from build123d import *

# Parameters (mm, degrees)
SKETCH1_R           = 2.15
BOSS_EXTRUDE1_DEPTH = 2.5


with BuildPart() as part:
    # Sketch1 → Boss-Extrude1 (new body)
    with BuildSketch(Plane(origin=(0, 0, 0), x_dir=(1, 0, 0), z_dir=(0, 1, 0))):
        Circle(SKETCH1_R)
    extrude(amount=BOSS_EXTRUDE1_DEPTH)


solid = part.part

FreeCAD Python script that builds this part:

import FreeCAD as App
import Part
import Sketcher
Q = App.Units.Quantity

doc = App.newDocument("Part")
body = doc.addObject("PartDesign::Body", "Body")

# Sketch on XZ plane
sketch1 = body.newObject("Sketcher::SketchObject", "Sketch")
sketch1.AttachmentSupport = (doc.getObject("XZ_Plane"), [""])
sketch1.MapMode = "FlatFace"
sketch1.addGeometry(Part.Circle(App.Vector(0, 0, 0), App.Vector(0, 0, 1), 2.1), False)
sketch1.addConstraint(Sketcher.Constraint("Coincident", 0, 3, -1, 1))
sketch1.addConstraint(Sketcher.Constraint("Diameter", 0, Q("4.3 mm")))
pad1 = body.newObject("PartDesign::Pad", "Pad")
pad1.Profile = sketch1
pad1.Length = 2.5
pad1.Reversed = True

doc.recompute()
